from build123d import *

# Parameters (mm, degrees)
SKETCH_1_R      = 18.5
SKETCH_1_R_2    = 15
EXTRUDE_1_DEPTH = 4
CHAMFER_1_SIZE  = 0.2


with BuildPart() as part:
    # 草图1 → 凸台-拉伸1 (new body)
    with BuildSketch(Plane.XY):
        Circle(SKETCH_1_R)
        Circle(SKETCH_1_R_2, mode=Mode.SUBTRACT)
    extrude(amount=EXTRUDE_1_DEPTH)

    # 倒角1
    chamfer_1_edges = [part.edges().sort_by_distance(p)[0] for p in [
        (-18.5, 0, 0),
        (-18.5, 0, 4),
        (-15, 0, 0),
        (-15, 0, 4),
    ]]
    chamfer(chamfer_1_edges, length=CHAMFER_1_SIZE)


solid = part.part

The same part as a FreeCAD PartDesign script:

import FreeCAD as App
import Part
import Sketcher

V = App.Vector
Q = App.Units.Quantity


def edges_at(feature, points):
    """Names of the edges that pass closest to the given points."""
    edges = feature.Shape.Edges
    near = lambda p: min(range(len(edges)), key=lambda i: edges[i].distToShape(Part.Vertex(*p))[0])
    return sorted({f"Edge{near(p) + 1}" for p in points})

doc = App.newDocument("Part")
body = doc.addObject("PartDesign::Body", "Body")

sketch1 = body.newObject("Sketcher::SketchObject", "Sketch")
sketch1.AttachmentSupport = (doc.getObject("XY_Plane"), [""])
sketch1.MapMode = "FlatFace"
sketch1.addGeometry([
    Part.Circle(V(0, 0, 0), V(0, 0, 1), 18),
    Part.Circle(V(0, 0, 0), V(0, 0, 1), 15),
], False)
sketch1.addConstraint([
    Sketcher.Constraint("Coincident", 0, 3, -1, 1),
    Sketcher.Constraint("Coincident", 1, 3, -1, 1),
    Sketcher.Constraint("Diameter", 0, Q("37 mm")),
    Sketcher.Constraint("Diameter", 1, Q("30 mm")),
])
pad1 = body.newObject("PartDesign::Pad", "Pad")
pad1.Profile = sketch1
pad1.Length = 4
doc.recompute()

chamfer = body.newObject("PartDesign::Chamfer", "Chamfer")
chamfer.Base = (pad1, edges_at(pad1, [
    (-18.5, 0, 0),
    (-18.5, 0, 4),
    (-15, 0, 0),
    (-15, 0, 4),
]))
chamfer.Size = 0.2

doc.recompute()
